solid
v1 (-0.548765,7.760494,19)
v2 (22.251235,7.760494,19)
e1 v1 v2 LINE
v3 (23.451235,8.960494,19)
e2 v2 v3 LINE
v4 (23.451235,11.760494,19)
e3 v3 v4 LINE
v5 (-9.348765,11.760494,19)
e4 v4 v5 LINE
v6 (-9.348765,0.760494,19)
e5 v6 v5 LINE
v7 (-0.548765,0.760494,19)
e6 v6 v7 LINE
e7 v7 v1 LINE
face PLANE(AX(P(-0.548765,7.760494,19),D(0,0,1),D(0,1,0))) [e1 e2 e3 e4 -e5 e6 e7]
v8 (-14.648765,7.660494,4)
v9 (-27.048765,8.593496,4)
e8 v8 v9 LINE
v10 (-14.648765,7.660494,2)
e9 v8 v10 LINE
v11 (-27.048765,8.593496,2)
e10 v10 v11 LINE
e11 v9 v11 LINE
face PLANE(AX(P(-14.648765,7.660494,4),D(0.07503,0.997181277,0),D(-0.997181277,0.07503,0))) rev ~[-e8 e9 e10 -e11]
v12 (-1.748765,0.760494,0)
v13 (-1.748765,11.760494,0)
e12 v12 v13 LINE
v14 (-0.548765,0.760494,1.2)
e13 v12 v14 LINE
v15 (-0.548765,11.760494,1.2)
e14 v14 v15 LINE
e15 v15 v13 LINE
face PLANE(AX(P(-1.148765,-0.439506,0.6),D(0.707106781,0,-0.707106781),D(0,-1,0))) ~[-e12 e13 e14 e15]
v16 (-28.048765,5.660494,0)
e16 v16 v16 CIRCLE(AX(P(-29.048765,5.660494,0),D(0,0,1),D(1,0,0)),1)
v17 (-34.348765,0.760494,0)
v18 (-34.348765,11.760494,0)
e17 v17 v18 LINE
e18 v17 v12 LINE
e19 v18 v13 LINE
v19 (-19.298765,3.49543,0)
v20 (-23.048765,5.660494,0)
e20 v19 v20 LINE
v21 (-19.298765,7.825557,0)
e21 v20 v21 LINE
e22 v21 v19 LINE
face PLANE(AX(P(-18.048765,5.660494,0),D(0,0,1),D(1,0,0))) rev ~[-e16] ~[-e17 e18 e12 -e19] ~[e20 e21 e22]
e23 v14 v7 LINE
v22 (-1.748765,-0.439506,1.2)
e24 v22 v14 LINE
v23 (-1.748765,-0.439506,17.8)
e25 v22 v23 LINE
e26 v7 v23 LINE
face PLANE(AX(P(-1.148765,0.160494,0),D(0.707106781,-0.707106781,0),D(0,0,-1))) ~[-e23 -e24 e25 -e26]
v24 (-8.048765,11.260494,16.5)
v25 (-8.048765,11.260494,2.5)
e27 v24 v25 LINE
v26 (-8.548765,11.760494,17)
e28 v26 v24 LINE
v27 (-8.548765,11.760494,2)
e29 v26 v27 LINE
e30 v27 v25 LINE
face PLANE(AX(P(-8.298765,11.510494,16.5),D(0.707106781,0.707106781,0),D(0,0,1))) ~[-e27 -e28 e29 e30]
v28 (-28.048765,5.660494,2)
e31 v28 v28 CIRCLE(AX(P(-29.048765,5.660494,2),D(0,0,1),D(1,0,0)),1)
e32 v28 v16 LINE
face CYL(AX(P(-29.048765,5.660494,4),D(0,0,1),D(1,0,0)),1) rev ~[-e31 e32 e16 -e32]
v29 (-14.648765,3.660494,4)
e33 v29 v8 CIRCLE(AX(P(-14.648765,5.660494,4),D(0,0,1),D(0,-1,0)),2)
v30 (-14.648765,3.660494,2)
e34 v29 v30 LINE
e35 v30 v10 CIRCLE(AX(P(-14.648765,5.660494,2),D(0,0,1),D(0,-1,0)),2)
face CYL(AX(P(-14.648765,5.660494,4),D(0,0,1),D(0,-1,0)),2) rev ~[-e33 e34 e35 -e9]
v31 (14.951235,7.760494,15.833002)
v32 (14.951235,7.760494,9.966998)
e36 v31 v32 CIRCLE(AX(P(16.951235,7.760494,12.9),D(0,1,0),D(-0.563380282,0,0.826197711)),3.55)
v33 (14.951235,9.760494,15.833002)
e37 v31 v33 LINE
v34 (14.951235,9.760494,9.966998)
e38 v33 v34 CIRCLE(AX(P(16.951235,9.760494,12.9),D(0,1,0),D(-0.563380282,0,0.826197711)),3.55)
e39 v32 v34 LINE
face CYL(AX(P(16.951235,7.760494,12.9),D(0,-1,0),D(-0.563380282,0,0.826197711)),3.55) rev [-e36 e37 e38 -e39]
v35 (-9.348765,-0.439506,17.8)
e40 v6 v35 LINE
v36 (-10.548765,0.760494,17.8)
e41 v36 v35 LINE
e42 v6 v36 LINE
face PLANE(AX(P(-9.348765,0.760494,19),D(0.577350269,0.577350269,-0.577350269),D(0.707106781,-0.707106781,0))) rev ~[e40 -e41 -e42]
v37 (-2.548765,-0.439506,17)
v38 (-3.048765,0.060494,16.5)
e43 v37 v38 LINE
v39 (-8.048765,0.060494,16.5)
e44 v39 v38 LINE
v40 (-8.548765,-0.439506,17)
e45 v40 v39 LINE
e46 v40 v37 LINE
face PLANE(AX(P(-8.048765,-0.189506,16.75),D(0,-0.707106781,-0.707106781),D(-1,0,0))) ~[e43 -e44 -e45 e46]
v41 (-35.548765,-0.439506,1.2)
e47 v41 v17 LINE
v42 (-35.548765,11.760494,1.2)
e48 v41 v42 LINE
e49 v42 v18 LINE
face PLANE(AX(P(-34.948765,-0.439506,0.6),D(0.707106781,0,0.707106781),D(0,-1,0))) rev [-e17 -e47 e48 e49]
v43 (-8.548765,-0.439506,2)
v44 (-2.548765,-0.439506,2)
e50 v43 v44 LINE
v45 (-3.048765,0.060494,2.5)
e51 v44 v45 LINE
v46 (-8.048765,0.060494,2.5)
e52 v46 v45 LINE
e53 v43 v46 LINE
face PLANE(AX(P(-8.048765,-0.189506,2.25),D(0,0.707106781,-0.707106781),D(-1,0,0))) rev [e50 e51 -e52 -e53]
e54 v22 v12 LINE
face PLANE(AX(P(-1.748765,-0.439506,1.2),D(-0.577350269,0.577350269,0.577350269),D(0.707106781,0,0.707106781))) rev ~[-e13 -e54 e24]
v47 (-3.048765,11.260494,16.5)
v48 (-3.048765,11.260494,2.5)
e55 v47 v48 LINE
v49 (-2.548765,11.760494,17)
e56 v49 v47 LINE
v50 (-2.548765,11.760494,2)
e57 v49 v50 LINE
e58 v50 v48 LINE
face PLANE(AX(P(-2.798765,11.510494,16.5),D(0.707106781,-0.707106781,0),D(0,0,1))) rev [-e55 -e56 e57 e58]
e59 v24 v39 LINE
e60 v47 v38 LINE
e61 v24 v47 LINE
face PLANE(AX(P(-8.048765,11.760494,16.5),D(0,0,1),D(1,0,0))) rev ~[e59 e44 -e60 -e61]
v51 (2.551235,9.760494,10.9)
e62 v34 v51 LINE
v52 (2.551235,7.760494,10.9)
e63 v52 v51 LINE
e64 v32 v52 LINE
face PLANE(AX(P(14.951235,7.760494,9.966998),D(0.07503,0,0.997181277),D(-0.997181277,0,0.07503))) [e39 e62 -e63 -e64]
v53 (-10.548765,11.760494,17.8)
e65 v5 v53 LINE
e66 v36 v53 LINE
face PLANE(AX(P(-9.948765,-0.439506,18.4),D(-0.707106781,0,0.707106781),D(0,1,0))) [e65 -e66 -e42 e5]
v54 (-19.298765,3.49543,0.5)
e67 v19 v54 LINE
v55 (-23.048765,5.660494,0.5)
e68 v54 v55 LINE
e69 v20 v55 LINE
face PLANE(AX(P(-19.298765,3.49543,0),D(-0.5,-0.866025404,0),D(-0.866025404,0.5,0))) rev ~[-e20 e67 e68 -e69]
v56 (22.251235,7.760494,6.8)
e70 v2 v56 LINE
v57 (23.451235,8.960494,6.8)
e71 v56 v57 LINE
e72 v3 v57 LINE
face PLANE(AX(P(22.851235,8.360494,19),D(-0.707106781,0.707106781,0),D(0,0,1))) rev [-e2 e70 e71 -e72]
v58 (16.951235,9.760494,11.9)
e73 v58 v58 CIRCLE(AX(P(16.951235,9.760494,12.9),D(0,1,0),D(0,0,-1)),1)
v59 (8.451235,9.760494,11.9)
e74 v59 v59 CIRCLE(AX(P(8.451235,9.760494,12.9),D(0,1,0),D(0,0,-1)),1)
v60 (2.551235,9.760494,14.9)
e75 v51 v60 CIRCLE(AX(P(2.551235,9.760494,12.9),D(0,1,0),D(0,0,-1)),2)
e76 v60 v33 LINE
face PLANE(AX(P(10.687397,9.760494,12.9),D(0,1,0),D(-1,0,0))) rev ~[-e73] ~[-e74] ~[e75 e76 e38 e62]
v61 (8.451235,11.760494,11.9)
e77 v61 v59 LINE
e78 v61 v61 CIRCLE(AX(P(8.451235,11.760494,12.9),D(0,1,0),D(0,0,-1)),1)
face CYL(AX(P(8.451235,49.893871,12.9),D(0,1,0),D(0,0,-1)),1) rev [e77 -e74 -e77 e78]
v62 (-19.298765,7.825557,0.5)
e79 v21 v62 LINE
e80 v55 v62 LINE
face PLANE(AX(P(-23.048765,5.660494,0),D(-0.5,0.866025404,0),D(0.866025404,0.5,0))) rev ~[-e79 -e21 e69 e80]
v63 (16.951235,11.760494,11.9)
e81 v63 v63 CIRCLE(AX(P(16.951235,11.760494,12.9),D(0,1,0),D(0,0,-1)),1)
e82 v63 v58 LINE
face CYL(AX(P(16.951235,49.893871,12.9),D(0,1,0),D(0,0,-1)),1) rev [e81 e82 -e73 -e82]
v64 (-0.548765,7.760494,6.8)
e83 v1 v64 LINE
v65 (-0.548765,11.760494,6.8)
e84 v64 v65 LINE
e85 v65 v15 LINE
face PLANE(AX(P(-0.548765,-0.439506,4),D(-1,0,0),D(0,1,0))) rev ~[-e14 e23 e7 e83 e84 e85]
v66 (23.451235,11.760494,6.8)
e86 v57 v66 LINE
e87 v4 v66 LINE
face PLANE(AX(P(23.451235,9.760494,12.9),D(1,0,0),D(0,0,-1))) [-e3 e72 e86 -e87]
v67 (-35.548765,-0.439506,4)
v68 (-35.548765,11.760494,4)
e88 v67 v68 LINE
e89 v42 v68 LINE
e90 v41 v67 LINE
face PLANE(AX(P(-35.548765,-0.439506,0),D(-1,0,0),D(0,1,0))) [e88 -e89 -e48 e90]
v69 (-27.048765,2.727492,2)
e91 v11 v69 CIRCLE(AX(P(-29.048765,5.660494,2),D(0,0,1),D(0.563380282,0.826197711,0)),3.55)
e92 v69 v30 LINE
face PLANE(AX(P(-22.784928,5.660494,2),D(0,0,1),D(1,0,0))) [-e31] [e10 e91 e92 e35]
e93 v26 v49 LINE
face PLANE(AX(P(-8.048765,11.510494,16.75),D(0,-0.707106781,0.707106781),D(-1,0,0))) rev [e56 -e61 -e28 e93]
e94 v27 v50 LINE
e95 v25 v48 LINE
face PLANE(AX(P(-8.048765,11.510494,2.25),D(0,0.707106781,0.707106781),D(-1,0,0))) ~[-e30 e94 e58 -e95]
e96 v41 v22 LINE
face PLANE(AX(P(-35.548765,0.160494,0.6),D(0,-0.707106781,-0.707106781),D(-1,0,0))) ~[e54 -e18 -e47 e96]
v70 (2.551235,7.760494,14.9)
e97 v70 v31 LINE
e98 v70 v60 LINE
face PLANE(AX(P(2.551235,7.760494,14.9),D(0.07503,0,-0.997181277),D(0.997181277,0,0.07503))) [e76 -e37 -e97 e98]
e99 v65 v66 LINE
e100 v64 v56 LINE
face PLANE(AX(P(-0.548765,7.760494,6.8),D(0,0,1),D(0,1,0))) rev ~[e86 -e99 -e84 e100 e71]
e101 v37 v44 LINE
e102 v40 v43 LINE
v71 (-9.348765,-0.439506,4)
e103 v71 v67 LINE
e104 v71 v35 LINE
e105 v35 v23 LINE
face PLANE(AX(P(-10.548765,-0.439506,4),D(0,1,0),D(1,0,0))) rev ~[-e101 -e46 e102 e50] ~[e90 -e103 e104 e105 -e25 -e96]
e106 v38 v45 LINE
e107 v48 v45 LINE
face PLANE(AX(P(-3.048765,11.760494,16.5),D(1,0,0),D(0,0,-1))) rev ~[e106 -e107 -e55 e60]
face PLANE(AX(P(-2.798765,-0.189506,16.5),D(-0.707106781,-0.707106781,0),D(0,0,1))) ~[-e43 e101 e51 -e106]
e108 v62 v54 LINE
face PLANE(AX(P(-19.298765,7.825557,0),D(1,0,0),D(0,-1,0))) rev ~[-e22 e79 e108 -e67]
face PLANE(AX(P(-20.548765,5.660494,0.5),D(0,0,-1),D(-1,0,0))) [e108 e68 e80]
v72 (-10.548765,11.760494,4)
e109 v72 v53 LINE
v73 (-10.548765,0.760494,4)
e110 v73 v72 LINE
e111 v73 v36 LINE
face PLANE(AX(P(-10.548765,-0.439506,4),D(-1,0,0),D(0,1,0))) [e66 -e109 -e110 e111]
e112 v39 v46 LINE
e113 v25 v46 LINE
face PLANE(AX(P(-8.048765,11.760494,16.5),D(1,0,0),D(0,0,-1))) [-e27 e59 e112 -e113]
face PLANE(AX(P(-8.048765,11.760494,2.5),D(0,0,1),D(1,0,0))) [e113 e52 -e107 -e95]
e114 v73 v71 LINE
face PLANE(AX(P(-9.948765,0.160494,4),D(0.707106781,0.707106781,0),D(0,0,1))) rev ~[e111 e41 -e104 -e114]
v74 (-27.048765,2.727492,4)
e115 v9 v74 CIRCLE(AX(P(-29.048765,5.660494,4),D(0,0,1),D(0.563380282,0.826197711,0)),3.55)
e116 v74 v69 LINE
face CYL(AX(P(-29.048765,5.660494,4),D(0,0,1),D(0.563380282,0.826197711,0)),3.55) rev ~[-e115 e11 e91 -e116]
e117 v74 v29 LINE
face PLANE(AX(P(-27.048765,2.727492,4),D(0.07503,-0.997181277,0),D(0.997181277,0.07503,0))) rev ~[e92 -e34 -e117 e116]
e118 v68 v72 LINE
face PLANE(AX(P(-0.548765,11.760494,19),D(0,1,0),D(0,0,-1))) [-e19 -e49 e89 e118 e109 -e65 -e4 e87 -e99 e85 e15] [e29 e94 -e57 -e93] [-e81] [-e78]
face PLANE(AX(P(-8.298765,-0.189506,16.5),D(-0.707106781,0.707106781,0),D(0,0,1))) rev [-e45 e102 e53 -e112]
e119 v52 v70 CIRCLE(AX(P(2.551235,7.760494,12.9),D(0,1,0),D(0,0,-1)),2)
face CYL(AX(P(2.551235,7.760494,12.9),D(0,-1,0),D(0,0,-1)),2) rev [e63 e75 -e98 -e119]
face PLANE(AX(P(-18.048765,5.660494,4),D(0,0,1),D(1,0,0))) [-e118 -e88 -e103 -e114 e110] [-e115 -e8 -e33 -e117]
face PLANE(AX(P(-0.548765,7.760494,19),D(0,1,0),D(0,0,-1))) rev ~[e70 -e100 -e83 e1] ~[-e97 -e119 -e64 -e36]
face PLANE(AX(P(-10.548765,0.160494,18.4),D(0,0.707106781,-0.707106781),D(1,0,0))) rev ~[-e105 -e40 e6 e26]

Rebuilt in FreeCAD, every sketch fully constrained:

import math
import FreeCAD as App
import Part
import Sketcher
from FreeCAD import Vector
Q = App.Units.Quantity


def edges_at(feature, points):
    """Names of the edges that pass closest to the given points."""
    edges = feature.Shape.Edges
    near = lambda p: min(range(len(edges)), key=lambda i: edges[i].distToShape(Part.Vertex(*p))[0])
    return sorted({f"Edge{near(p) + 1}" for p in points})

doc = App.newDocument("Part")
body = doc.addObject("PartDesign::Body", "Body")

sketch1 = body.newObject("Sketcher::SketchObject", "Sketch")
sketch1.AttachmentSupport = (doc.getObject("XY_Plane"), [""])
sketch1.MapMode = "FlatFace"
sketch1.addGeometry([
    Part.LineSegment(Vector(-36, 12, 0), Vector(-36, 0, 0)),
    Part.LineSegment(Vector(-36, 0, 0), Vector(-1, 0, 0)),
    Part.LineSegment(Vector(-1, 0, 0), Vector(-1, 12, 0)),
    Part.LineSegment(Vector(-1, 12, 0), Vector(-36, 12, 0)),
], False)
sketch1.addConstraint([
    Sketcher.Constraint("Coincident", 0, 2, 1, 1),
    Sketcher.Constraint("Coincident", 1, 2, 2, 1),
    Sketcher.Constraint("Coincident", 2, 2, 3, 1),
    Sketcher.Constraint("Coincident", 3, 2, 0, 1),
    Sketcher.Constraint("Vertical", 0),
    Sketcher.Constraint("Horizontal", 1),
    Sketcher.Constraint("Vertical", 2),
    Sketcher.Constraint("Horizontal", 3),
    Sketcher.Constraint("DistanceX", 1, 1, 1, 2, 35.0),
    Sketcher.Constraint("DistanceY", 0, 2, 0, 1, 12.2),
    Sketcher.Constraint("DistanceX", 0, 2, -1, 1, 35.548765),
    Sketcher.Constraint("DistanceY", 0, 2, -1, 1, 0.439506),
])
pad1 = body.newObject("PartDesign::Pad", "Pad")
pad1.Profile = sketch1
pad1.Length = 4

sketch2 = body.newObject("Sketcher::SketchObject", "Sketch001")
sketch2.AttachmentSupport = (doc.getObject("XY_Plane"), [""])
sketch2.MapMode = "FlatFace"
sketch2.AttachmentOffset = App.Placement(Vector(0, 0, 4), App.Rotation())
sketch2.addGeometry(Part.Circle(Vector(-29, 5.7, 0), Vector(0, 0, 1), 1), False)
sketch2.addConstraint([
    Sketcher.Constraint("Diameter", 0, 2.0),
    Sketcher.Constraint("DistanceX", 0, 3, -1, 1, 29.048765),
    Sketcher.Constraint("DistanceY", -1, 1, 0, 3, 5.660494),
])
pocket1 = body.newObject("PartDesign::Pocket", "Pocket")
pocket1.Profile = sketch2
pocket1.Type = "ThroughAll"

sketch3 = body.newObject("Sketcher::SketchObject", "Sketch002")
sketch3.AttachmentSupport = (doc.getObject("XY_Plane"), [""])
sketch3.MapMode = "FlatFace"
sketch3.AttachmentOffset = App.Placement(Vector(0, 0, 4), App.Rotation())
sketch3.addGeometry([
    Part.LineSegment(Vector(-11, 12, 0), Vector(-11, 0, 0)),
    Part.LineSegment(Vector(-11, 0, 0), Vector(-1, 0, 0)),
    Part.LineSegment(Vector(-1, 0, 0), Vector(-1, 12, 0)),
    Part.LineSegment(Vector(-1, 12, 0), Vector(-11, 12, 0)),
], False)
sketch3.addConstraint([
    Sketcher.Constraint("Coincident", 0, 2, 1, 1),
    Sketcher.Constraint("Coincident", 1, 2, 2, 1),
    Sketcher.Constraint("Coincident", 2, 2, 3, 1),
    Sketcher.Constraint("Coincident", 3, 2, 0, 1),
    Sketcher.Constraint("Vertical", 0),
    Sketcher.Constraint("Horizontal", 1),
    Sketcher.Constraint("Vertical", 2),
    Sketcher.Constraint("Horizontal", 3),
    Sketcher.Constraint("DistanceX", 1, 1, 1, 2, 10.0),
    Sketcher.Constraint("DistanceY", 0, 2, 0, 1, 12.2),
    Sketcher.Constraint("DistanceX", 0, 2, -1, 1, 10.548765),
    Sketcher.Constraint("DistanceY", 0, 2, -1, 1, 0.439506),
])
pad2 = body.newObject("PartDesign::Pad", "Pad001")
pad2.Profile = sketch3
pad2.Length = 15

sketch4 = body.newObject("Sketcher::SketchObject", "Sketch003")
sketch4.AttachmentSupport = (doc.getObject("YZ_Plane"), [""])
sketch4.MapMode = "FlatFace"
sketch4.AttachmentOffset = App.Placement(Vector(0, 0, -0.548765), App.Rotation())
sketch4.addGeometry([
    Part.LineSegment(Vector(11.8, 19, 0), Vector(7.8, 19, 0)),
    Part.LineSegment(Vector(7.8, 19, 0), Vector(7.8, 6.8, 0)),
    Part.LineSegment(Vector(7.8, 6.8, 0), Vector(11.8, 6.8, 0)),
    Part.LineSegment(Vector(11.8, 6.8, 0), Vector(11.8, 19, 0)),
], False)
sketch4.addConstraint([
    Sketcher.Constraint("Coincident", 0, 2, 1, 1),
    Sketcher.Constraint("Coincident", 1, 2, 2, 1),
    Sketcher.Constraint("Coincident", 2, 2, 3, 1),
    Sketcher.Constraint("Coincident", 3, 2, 0, 1),
    Sketcher.Constraint("Horizontal", 0),
    Sketcher.Constraint("Vertical", 1),
    Sketcher.Constraint("Horizontal", 2),
    Sketcher.Constraint("Vertical", 3),
    Sketcher.Constraint("DistanceX", 0, 2, 0, 1, 4.0),
    Sketcher.Constraint("DistanceY", 1, 2, 1, 1, 12.2),
    Sketcher.Constraint("DistanceY", -1, 1, 0, 2, 19.0),
    Sketcher.Constraint("DistanceX", -1, 1, 0, 2, 7.760494),
])
pad3 = body.newObject("PartDesign::Pad", "Pad002")
pad3.Profile = sketch4
pad3.Length = 24

sketch5 = body.newObject("Sketcher::SketchObject", "Sketch004")
sketch5.AttachmentSupport = (doc.getObject("XZ_Plane"), [""])
sketch5.MapMode = "FlatFace"
sketch5.AttachmentOffset = App.Placement(Vector(0, 0, -7.760494), App.Rotation())
sketch5.addGeometry([
    Part.Circle(Vector(17, 12.9, 0), Vector(0, 0, 1), 1),
    Part.Circle(Vector(8.5, 12.9, 0), Vector(0, 0, 1), 1),
], False)
sketch5.addConstraint([
    Sketcher.Constraint("Equal", 0, 1),
    Sketcher.Constraint("Horizontal", 0, 3, 1, 3),
    Sketcher.Constraint("Diameter", 0, 2.0),
    Sketcher.Constraint("DistanceY", -1, 1, 0, 3, 12.9),
    Sketcher.Constraint("DistanceX", 1, 3, 0, 3, 8.5),
    Sketcher.Constraint("DistanceX", -1, 1, 0, 3, 16.951235),
])
pocket2 = body.newObject("PartDesign::Pocket", "Pocket001")
pocket2.Profile = sketch5
pocket2.Type = "ThroughAll"
pocket2.Midplane = True

sketch6 = body.newObject("Sketcher::SketchObject", "Sketch005")
sketch6.AttachmentSupport = (doc.getObject("XY_Plane"), [""])
sketch6.MapMode = "FlatFace"
sketch6.addGeometry([
    Part.LineSegment(Vector(-23, 5.7, 0), Vector(-19.3, 7.8, 0)),
    Part.LineSegment(Vector(-19.3, 7.8, 0), Vector(-19.3, 3.5, 0)),
    Part.LineSegment(Vector(-19.3, 3.5, 0), Vector(-23, 5.7, 0)),
], False)
sketch6.addConstraint([
    Sketcher.Constraint("Coincident", 0, 2, 1, 1),
    Sketcher.Constraint("Coincident", 1, 2, 2, 1),
    Sketcher.Constraint("Coincident", 2, 2, 0, 1),
    Sketcher.Constraint("Vertical", 1),
    Sketcher.Constraint("Equal", 0, 2),
    Sketcher.Constraint("Angle", 0, Q("30 deg")),
    Sketcher.Constraint("DistanceX", 2, 2, 1, 2, 3.75),
    Sketcher.Constraint("DistanceY", -1, 1, 1, 2, 3.49543),
    Sketcher.Constraint("DistanceX", 0, 2, -1, 1, 19.298765),
])
pocket3 = body.newObject("PartDesign::Pocket", "Pocket002")
pocket3.Profile = sketch6
pocket3.Length = 0.5
pocket3.Reversed = True
doc.recompute()

chamfer = body.newObject("PartDesign::Chamfer", "Chamfer")
chamfer.Base = (pocket3, edges_at(pocket3, [
    (-10.549, -0.44, 11.5),
    (-10.549, 5.66, 19),
    (-5.549, -0.44, 19),
    (23.451, 7.76, 12.9),
    (-0.549, 5.66, 0),
    (-18.049, -0.44, 0),
    (-35.549, 5.66, 0),
    (-0.549, -0.44, 9.5),
]))
chamfer.Size = 1.2

sketch7 = body.newObject("Sketcher::SketchObject", "Sketch006")
sketch7.AttachmentSupport = (doc.getObject("XY_Plane"), [""])
sketch7.MapMode = "FlatFace"
sketch7.AttachmentOffset = App.Placement(Vector(0, 0, 4), App.Rotation())
sketch7.addGeometry([
    Part.LineSegment(Vector(-27, 2.7, 0), Vector(-14.6, 3.7, 0)),
    Part.ArcOfCircle(Part.Circle(Vector(-14.6, 5.7, 0), Vector(0, 0, 1), 2), math.radians(-90), math.radians(90)),
    Part.LineSegment(Vector(-14.6, 7.7, 0), Vector(-27, 8.6, 0)),
    Part.ArcOfCircle(Part.Circle(Vector(-29, 5.7, 0), Vector(0, 0, 1), 3.5), math.radians(56), math.radians(304)),
], False)
sketch7.addConstraint([
    Sketcher.Constraint("Coincident", 0, 2, 1, 1),
    Sketcher.Constraint("Coincident", 1, 2, 2, 1),
    Sketcher.Constraint("Coincident", 2, 2, 3, 1),
    Sketcher.Constraint("Coincident", 3, 2, 0, 1),
    Sketcher.Constraint("Horizontal", 1, 3, 3, 3),
    Sketcher.Constraint("Vertical", 1, 3, 0, 2),
    Sketcher.Constraint("Vertical", 0, 2, 1, 2),
    Sketcher.Constraint("Vertical", 2, 2, 3, 2),
    Sketcher.Constraint("Radius", 1, 2.0),
    Sketcher.Constraint("Radius", 3, 3.55),
    Sketcher.Constraint("DistanceX", 3, 3, 2, 2, 2.0),
    Sketcher.Constraint("DistanceX", 3, 3, 1, 3, 14.4),
    Sketcher.Constraint("DistanceY", -1, 1, 3, 2, 2.727492),
    Sketcher.Constraint("DistanceX", 1, 3, -1, 1, 14.648765),
])
pocket4 = body.newObject("PartDesign::Pocket", "Pocket003")
pocket4.Profile = sketch7
pocket4.Length = 2

sketch8 = body.newObject("Sketcher::SketchObject", "Sketch007")
sketch8.AttachmentSupport = (doc.getObject("XZ_Plane"), [""])
sketch8.MapMode = "FlatFace"
sketch8.AttachmentOffset = App.Placement(Vector(0, 0, -7.760494), App.Rotation())
sketch8.addGeometry([
    Part.LineSegment(Vector(15, 15.8, 0), Vector(2.6, 14.9, 0)),
    Part.ArcOfCircle(Part.Circle(Vector(2.6, 12.9, 0), Vector(0, 0, 1), 2), math.radians(90), math.radians(270)),
    Part.LineSegment(Vector(2.6, 10.9, 0), Vector(15, 10, 0)),
    Part.ArcOfCircle(Part.Circle(Vector(17, 12.9, 0), Vector(0, 0, 1), 3.5), math.radians(-124), math.radians(124)),
], False)
sketch8.addConstraint([
    Sketcher.Constraint("Coincident", 0, 2, 1, 1),
    Sketcher.Constraint("Coincident", 1, 2, 2, 1),
    Sketcher.Constraint("Coincident", 2, 2, 3, 1),
    Sketcher.Constraint("Coincident", 3, 2, 0, 1),
    Sketcher.Constraint("Horizontal", 1, 3, 3, 3),
    Sketcher.Constraint("Vertical", 1, 3, 0, 2),
    Sketcher.Constraint("Vertical", 0, 2, 1, 2),
    Sketcher.Constraint("Vertical", 2, 2, 3, 2),
    Sketcher.Constraint("Radius", 1, 2.0),
    Sketcher.Constraint("Radius", 3, 3.55),
    Sketcher.Constraint("DistanceX", 2, 2, 3, 3, 2.0),
    Sketcher.Constraint("DistanceY", -1, 1, 1, 3, 12.9),
    Sketcher.Constraint("DistanceX", 1, 3, 3, 3, 14.4),
    Sketcher.Constraint("DistanceX", -1, 1, 1, 3, 2.551235),
])
pocket5 = body.newObject("PartDesign::Pocket", "Pocket004")
pocket5.Profile = sketch8
pocket5.Length = 2

sketch9 = body.newObject("Sketcher::SketchObject", "Sketch008")
sketch9.AttachmentSupport = (doc.getObject("XZ_Plane"), [""])
sketch9.MapMode = "FlatFace"
sketch9.AttachmentOffset = App.Placement(Vector(0, 0, -11.760494), App.Rotation())
sketch9.addGeometry([
    Part.LineSegment(Vector(-8, 2, 0), Vector(-8, 16, 0)),
    Part.LineSegment(Vector(-8, 16, 0), Vector(-3, 16, 0)),
    Part.LineSegment(Vector(-3, 16, 0), Vector(-3, 2, 0)),
    Part.LineSegment(Vector(-3, 2, 0), Vector(-8, 2, 0)),
], False)
sketch9.addConstraint([
    Sketcher.Constraint("Coincident", 0, 2, 1, 1),
    Sketcher.Constraint("Coincident", 1, 2, 2, 1),
    Sketcher.Constraint("Coincident", 2, 2, 3, 1),
    Sketcher.Constraint("Coincident", 3, 2, 0, 1),
    Sketcher.Constraint("Vertical", 0),
    Sketcher.Constraint("Horizontal", 1),
    Sketcher.Constraint("Vertical", 2),
    Sketcher.Constraint("Horizontal", 3),
    Sketcher.Constraint("DistanceX", 1, 1, 1, 2, 5.0),
    Sketcher.Constraint("DistanceY", 0, 1, 0, 2, 14.0),
    Sketcher.Constraint("DistanceY", -1, 1, 0, 2, 16.5),
    Sketcher.Constraint("DistanceX", 0, 2, -1, 1, 8.048765),
])
pocket6 = body.newObject("PartDesign::Pocket", "Pocket005")
pocket6.Profile = sketch9
pocket6.Type = "ThroughAll"
pocket6.Reversed = True
doc.recompute()

chamfer2 = body.newObject("PartDesign::Chamfer", "Chamfer001")
chamfer2.Base = (pocket6, edges_at(pocket6, [
    (-8.049, -0.44, 9.5),
    (-5.549, -0.44, 2.5),
    (-3.049, -0.44, 9.5),
    (-5.549, -0.44, 16.5),
    (-8.049, 11.76, 9.5),
    (-5.549, 11.76, 16.5),
    (-3.049, 11.76, 9.5),
    (-5.549, 11.76, 2.5),
]))
chamfer2.Size = 0.5

doc.recompute()
